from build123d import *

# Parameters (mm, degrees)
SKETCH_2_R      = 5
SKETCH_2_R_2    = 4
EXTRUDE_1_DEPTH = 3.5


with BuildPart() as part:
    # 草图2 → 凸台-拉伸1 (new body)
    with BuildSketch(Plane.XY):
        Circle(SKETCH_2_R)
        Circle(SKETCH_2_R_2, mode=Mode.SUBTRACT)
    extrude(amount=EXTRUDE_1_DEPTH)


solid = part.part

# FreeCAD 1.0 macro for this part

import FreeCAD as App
import Part
import Sketcher
Q = App.Units.Quantity

doc = App.newDocument("Part")
body = doc.addObject("PartDesign::Body", "Body")

# Sketch on XY plane
sketch1 = doc.addObject("Sketcher::SketchObject", "Sketch")
body.addObject(sketch1)
sketch1.AttachmentSupport = (doc.XY_Plane, [""])
sketch1.MapMode = "FlatFace"
sketch1.addGeometry(Part.Circle(App.Vector(0, 0, 0), App.Vector(0, 0, 1), 5), False)
sketch1.addGeometry(Part.Circle(App.Vector(0, 0, 0), App.Vector(0, 0, 1), 4), False)
sketch1.addConstraint(Sketcher.Constraint("Coincident", 0, 3, -1, 1))
sketch1.addConstraint(Sketcher.Constraint("Coincident", 1, 3, -1, 1))
sketch1.addConstraint(Sketcher.Constraint("Diameter", 0, Q("10 mm")))
sketch1.addConstraint(Sketcher.Constraint("Diameter", 1, Q("8 mm")))
pad1 = doc.addObject("PartDesign::Pad", "Pad")
body.addObject(pad1)
pad1.Profile = sketch1
pad1.Length = 3.5

doc.recompute()
